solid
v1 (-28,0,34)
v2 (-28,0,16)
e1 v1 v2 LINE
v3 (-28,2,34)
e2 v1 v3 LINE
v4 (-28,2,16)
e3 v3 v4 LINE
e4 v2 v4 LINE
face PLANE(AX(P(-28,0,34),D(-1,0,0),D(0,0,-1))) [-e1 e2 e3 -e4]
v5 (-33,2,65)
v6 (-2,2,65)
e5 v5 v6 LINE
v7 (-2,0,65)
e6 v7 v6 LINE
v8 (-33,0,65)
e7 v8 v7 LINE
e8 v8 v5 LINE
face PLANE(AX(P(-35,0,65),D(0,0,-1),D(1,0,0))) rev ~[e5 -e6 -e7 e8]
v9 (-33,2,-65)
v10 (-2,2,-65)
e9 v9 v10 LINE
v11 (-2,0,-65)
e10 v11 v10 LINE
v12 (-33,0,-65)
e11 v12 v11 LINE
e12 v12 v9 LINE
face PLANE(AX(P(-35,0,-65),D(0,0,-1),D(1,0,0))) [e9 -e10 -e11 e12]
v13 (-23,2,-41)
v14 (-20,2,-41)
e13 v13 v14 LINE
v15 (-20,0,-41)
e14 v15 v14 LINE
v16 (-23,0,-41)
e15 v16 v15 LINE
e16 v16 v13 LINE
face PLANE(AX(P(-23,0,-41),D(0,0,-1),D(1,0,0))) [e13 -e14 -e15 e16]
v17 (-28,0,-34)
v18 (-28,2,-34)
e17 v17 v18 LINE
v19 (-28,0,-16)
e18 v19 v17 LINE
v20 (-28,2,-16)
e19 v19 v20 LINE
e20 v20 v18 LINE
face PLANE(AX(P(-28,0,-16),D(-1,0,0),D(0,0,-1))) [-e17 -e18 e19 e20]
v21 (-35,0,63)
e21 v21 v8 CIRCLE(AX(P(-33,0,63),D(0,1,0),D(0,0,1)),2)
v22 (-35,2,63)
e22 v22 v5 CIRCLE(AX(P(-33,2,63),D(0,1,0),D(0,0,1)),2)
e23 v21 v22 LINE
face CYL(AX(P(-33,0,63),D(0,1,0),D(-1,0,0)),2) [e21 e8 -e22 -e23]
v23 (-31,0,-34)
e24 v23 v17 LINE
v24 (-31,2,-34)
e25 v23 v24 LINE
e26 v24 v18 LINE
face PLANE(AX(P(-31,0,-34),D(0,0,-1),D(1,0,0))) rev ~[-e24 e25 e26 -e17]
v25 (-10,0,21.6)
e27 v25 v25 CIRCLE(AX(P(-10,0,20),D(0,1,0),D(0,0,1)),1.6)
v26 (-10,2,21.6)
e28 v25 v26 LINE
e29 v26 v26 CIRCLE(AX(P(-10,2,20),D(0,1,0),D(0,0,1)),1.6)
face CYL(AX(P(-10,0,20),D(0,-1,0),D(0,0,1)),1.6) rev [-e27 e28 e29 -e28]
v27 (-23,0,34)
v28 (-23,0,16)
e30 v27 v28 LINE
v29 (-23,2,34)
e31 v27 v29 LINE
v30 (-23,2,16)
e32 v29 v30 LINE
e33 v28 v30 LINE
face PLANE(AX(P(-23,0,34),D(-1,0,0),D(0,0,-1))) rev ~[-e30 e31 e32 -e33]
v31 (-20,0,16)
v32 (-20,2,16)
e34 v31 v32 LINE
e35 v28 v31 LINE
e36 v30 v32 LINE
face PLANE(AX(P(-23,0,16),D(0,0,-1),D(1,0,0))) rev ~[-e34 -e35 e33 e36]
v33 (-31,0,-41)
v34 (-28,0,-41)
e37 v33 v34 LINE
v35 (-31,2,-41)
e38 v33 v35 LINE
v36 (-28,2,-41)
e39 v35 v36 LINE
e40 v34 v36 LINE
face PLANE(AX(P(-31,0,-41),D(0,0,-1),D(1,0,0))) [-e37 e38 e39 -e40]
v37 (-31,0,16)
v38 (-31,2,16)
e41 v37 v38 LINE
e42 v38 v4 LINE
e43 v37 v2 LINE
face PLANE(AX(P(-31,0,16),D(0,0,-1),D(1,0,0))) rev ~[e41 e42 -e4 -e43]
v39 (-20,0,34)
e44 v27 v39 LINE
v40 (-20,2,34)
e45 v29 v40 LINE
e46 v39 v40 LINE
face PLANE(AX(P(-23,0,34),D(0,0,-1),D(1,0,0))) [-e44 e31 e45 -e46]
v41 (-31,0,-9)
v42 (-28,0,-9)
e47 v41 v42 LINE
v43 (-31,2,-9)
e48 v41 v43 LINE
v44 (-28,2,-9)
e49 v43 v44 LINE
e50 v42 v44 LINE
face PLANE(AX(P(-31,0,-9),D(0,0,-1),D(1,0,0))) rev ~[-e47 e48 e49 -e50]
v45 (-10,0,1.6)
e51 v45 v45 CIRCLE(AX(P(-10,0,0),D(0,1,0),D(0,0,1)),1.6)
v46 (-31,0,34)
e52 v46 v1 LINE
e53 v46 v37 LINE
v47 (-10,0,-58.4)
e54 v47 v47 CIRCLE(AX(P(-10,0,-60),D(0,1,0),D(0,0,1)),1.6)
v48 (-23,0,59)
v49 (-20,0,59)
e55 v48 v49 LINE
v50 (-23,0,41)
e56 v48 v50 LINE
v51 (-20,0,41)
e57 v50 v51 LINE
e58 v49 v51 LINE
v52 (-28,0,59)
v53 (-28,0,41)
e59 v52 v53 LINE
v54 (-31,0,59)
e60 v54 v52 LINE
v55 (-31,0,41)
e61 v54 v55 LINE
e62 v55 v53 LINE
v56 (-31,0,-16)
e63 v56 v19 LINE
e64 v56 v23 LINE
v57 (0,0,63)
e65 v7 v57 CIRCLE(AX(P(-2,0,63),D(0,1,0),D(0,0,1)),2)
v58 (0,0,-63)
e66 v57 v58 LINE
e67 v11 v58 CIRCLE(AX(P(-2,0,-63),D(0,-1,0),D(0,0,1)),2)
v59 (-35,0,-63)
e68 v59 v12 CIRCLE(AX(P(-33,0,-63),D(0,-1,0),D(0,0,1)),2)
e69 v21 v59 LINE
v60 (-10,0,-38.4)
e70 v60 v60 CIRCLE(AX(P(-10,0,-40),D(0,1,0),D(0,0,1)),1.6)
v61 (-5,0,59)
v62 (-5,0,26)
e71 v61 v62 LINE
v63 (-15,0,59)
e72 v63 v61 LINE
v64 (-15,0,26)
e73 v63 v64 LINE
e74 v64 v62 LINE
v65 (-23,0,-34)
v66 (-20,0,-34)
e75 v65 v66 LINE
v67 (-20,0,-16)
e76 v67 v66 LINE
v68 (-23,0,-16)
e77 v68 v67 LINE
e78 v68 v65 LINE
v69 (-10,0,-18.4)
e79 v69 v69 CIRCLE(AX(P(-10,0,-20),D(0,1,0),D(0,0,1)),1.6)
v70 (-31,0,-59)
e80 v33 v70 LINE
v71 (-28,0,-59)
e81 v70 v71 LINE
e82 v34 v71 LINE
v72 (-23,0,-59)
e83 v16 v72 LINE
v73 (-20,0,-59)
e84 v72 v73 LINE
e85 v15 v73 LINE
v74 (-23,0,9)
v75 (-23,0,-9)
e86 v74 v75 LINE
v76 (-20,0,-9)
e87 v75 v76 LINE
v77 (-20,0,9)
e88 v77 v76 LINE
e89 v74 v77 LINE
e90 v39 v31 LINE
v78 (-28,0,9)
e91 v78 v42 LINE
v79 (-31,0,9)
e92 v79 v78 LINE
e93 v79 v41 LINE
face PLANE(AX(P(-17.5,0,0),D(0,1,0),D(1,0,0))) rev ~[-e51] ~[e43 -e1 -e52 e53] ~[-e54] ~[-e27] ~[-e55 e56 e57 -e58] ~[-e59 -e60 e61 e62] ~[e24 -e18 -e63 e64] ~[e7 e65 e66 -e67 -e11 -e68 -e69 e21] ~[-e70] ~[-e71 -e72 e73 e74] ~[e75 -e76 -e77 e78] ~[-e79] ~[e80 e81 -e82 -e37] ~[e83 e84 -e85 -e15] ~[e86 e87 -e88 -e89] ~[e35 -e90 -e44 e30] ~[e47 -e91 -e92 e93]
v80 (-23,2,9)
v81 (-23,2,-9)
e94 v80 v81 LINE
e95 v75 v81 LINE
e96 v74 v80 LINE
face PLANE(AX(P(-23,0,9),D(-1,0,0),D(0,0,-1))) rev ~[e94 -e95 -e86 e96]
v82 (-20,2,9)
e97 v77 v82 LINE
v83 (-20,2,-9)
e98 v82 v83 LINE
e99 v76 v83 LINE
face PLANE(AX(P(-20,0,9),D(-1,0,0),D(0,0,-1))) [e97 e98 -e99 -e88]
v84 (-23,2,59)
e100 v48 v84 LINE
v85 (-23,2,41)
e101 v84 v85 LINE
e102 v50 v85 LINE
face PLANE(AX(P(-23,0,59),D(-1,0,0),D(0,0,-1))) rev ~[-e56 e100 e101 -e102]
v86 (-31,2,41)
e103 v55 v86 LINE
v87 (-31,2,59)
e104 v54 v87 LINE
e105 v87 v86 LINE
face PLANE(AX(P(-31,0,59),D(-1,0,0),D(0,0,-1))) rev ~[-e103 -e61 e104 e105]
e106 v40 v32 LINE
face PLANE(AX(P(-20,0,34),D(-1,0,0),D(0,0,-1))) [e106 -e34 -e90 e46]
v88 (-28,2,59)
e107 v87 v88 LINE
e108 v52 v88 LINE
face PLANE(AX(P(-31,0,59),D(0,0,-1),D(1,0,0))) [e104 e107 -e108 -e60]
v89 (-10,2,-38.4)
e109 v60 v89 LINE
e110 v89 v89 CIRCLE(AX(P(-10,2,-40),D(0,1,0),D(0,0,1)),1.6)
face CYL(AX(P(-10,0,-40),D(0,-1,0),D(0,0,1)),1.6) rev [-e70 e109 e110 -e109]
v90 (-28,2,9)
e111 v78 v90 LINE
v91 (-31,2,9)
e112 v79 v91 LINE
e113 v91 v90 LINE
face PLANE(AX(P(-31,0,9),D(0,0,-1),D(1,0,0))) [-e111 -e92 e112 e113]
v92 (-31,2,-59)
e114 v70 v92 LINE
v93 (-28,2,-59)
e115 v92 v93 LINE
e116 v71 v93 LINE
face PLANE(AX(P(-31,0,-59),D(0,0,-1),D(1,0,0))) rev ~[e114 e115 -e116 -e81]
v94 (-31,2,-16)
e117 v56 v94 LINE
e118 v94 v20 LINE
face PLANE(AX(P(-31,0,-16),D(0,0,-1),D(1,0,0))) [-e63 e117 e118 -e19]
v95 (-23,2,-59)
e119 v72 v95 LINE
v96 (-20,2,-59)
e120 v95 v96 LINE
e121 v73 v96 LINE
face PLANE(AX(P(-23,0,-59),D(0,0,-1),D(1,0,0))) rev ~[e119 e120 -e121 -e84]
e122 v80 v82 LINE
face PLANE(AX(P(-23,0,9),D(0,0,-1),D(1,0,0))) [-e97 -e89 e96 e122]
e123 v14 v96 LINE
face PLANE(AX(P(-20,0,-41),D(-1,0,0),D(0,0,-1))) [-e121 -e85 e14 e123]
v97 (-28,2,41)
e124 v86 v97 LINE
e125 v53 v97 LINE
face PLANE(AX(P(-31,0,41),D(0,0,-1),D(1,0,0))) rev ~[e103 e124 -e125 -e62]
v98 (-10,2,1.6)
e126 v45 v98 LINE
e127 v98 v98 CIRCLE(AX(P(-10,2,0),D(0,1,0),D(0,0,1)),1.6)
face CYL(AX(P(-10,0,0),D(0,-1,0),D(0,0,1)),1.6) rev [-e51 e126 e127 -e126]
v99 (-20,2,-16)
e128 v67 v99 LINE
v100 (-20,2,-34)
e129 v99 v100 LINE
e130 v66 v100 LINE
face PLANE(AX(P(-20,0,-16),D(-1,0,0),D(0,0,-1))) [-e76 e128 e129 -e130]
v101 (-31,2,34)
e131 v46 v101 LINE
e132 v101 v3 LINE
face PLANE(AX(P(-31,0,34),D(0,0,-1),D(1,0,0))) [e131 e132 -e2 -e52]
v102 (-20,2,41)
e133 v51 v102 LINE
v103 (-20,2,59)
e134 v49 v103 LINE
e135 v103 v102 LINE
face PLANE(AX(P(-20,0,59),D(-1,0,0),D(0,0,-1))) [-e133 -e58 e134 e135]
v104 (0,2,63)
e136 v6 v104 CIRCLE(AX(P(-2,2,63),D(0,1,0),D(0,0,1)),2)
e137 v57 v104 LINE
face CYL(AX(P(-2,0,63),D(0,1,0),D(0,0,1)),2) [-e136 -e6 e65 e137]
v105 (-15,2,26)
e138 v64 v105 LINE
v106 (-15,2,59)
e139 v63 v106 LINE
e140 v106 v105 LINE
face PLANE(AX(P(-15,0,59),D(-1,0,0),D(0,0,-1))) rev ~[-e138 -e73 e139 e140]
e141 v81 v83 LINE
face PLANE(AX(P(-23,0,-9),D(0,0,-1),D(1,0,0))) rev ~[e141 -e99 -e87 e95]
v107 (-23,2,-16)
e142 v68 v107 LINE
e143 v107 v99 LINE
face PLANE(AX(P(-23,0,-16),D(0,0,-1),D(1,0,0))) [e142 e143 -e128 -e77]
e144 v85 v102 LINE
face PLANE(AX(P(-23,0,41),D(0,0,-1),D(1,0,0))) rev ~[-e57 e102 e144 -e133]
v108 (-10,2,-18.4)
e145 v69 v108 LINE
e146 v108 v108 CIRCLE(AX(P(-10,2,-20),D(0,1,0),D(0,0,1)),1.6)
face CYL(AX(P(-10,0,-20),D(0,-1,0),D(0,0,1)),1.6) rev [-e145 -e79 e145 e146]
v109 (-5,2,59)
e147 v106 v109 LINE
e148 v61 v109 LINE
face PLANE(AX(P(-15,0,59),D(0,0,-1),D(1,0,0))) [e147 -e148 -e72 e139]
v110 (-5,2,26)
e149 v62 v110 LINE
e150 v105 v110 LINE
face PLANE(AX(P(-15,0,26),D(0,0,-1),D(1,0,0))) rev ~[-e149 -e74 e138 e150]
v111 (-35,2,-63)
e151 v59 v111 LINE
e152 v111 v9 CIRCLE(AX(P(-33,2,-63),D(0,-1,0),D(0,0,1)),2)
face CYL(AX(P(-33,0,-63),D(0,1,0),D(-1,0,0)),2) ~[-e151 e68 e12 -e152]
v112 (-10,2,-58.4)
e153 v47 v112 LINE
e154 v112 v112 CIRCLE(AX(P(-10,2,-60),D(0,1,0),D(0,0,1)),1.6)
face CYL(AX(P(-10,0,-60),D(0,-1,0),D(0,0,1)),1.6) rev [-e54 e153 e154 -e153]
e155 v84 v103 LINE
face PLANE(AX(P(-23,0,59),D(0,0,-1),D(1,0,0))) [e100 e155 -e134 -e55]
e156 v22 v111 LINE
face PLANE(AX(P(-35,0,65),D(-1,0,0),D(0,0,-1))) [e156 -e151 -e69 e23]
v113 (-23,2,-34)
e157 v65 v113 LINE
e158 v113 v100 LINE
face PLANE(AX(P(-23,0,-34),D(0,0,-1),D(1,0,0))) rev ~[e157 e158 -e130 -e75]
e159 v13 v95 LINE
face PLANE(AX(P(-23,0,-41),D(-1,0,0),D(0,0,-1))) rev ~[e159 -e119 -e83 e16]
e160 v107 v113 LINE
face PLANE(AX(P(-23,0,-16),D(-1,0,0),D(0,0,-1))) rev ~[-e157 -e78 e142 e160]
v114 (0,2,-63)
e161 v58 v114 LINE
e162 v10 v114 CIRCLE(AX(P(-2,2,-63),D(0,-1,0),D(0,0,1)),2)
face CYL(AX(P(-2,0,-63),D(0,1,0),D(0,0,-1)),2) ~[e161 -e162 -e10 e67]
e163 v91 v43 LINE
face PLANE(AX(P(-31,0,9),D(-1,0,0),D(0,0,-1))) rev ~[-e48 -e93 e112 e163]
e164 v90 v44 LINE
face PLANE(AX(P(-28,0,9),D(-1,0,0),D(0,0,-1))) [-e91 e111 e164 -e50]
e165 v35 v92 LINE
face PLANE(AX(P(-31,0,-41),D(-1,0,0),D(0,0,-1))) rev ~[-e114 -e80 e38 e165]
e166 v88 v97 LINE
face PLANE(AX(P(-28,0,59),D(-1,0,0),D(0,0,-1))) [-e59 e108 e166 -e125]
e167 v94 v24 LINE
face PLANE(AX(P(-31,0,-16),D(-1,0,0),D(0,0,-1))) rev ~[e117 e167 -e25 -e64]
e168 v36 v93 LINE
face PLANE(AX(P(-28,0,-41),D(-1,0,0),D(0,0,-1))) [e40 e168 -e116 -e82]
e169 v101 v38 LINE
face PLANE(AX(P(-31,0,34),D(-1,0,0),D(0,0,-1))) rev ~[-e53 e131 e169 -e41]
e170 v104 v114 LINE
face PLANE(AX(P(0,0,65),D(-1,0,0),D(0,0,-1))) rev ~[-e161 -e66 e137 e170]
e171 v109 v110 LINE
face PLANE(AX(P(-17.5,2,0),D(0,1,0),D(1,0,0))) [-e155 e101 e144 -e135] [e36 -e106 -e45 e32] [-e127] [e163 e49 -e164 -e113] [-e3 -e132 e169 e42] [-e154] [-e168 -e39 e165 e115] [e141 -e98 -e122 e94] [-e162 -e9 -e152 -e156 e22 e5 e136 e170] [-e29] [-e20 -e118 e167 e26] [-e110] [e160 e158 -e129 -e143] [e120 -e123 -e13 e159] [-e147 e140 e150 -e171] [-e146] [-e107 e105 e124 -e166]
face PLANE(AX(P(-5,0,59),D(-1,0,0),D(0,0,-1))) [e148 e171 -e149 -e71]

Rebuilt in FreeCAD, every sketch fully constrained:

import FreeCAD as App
import Part
import Sketcher
Q = App.Units.Quantity


def edges_at(feature, points):
    """Names of the edges that pass closest to the given points."""
    edges = feature.Shape.Edges
    near = lambda p: min(range(len(edges)), key=lambda i: edges[i].distToShape(Part.Vertex(*p))[0])
    return sorted({f"Edge{near(p) + 1}" for p in points})


def add_polygon(sketch, points):
    """Adds a closed chain of lines whose ends are joined by coincident constraints."""
    first, n = sketch.GeometryCount, len(points)
    for a, b in zip(points, points[1:] + points[:1]):
        sketch.addGeometry(Part.LineSegment(App.Vector(*a, 0), App.Vector(*b, 0)), False)
    for i in range(n):
        sketch.addConstraint(Sketcher.Constraint("Coincident", first + i, 2, first + (i + 1) % n, 1))

doc = App.newDocument("Part")
body = doc.addObject("PartDesign::Body", "Body")

sketch1 = body.newObject("Sketcher::SketchObject", "Sketch")
sketch1.AttachmentSupport = (doc.getObject("XZ_Plane"), [""])
sketch1.MapMode = "FlatFace"
add_polygon(sketch1, [(-35, -65), (-35, 65), (0, 65), (0, -65)])
add_polygon(sketch1, [(-28, 59), (-31, 59), (-31, 41), (-28, 41)])
add_polygon(sketch1, [(-20, 59), (-23, 59), (-23, 41), (-20, 41)])
add_polygon(sketch1, [(-28, 34), (-31, 34), (-31, 16), (-28, 16)])
add_polygon(sketch1, [(-28, 9), (-31, 9), (-31, -9), (-28, -9)])
add_polygon(sketch1, [(-20, 34), (-23, 34), (-23, 16), (-20, 16)])
add_polygon(sketch1, [(-20, 9), (-23, 9), (-23, -9), (-20, -9)])
add_polygon(sketch1, [(-5, 59), (-15, 59), (-15, 26), (-5, 26)])
sketch1.addGeometry(Part.Circle(App.Vector(-10, 20, 0), App.Vector(0, 0, 1), 1.6), False)
sketch1.addGeometry(Part.Circle(App.Vector(-10, 0, 0), App.Vector(0, 0, 1), 1.6), False)
add_polygon(sketch1, [(-28, -16), (-31, -16), (-31, -34), (-28, -34)])
add_polygon(sketch1, [(-20, -16), (-23, -16), (-23, -34), (-20, -34)])
add_polygon(sketch1, [(-28, -41), (-31, -41), (-31, -59), (-28, -59)])
add_polygon(sketch1, [(-20, -41), (-23, -41), (-23, -59), (-20, -59)])
sketch1.addGeometry(Part.Circle(App.Vector(-10, -20, 0), App.Vector(0, 0, 1), 1.6), False)
sketch1.addGeometry(Part.Circle(App.Vector(-10, -40, 0), App.Vector(0, 0, 1), 1.6), False)
sketch1.addGeometry(Part.Circle(App.Vector(-10, -60, 0), App.Vector(0, 0, 1), 1.6), False)
sketch1.addConstraint([
    Sketcher.Constraint("Vertical", 0),
    Sketcher.Constraint("Horizontal", 1),
    Sketcher.Constraint("Vertical", 2),
    Sketcher.Constraint("Horizontal", 3),
    Sketcher.Constraint("Horizontal", 4),
    Sketcher.Constraint("Vertical", 5),
    Sketcher.Constraint("Horizontal", 6),
    Sketcher.Constraint("Vertical", 7),
    Sketcher.Constraint("Horizontal", 8),
    Sketcher.Constraint("Vertical", 9),
    Sketcher.Constraint("Horizontal", 10),
    Sketcher.Constraint("Vertical", 11),
    Sketcher.Constraint("Horizontal", 12),
    Sketcher.Constraint("Vertical", 13),
    Sketcher.Constraint("Horizontal", 14),
    Sketcher.Constraint("Vertical", 15),
    Sketcher.Constraint("Horizontal", 16),
    Sketcher.Constraint("Vertical", 17),
    Sketcher.Constraint("Horizontal", 18),
    Sketcher.Constraint("Vertical", 19),
    Sketcher.Constraint("Horizontal", 20),
    Sketcher.Constraint("Vertical", 21),
    Sketcher.Constraint("Horizontal", 22),
    Sketcher.Constraint("Vertical", 23),
    Sketcher.Constraint("Horizontal", 24),
    Sketcher.Constraint("Vertical", 25),
    Sketcher.Constraint("Horizontal", 26),
    Sketcher.Constraint("Vertical", 27),
    Sketcher.Constraint("Horizontal", 28),
    Sketcher.Constraint("Vertical", 29),
    Sketcher.Constraint("Horizontal", 30),
    Sketcher.Constraint("Vertical", 31),
    Sketcher.Constraint("Horizontal", 34),
    Sketcher.Constraint("Vertical", 35),
    Sketcher.Constraint("Horizontal", 36),
    Sketcher.Constraint("Vertical", 37),
    Sketcher.Constraint("Horizontal", 38),
    Sketcher.Constraint("Vertical", 39),
    Sketcher.Constraint("Horizontal", 40),
    Sketcher.Constraint("Vertical", 41),
    Sketcher.Constraint("Horizontal", 42),
    Sketcher.Constraint("Vertical", 43),
    Sketcher.Constraint("Horizontal", 44),
    Sketcher.Constraint("Vertical", 45),
    Sketcher.Constraint("Horizontal", 46),
    Sketcher.Constraint("Vertical", 47),
    Sketcher.Constraint("Horizontal", 48),
    Sketcher.Constraint("Vertical", 49),
    Sketcher.Constraint("Equal", 32, 33),
    Sketcher.Constraint("Equal", 33, 50),
    Sketcher.Constraint("Equal", 50, 51),
    Sketcher.Constraint("Equal", 51, 52),
    Sketcher.Constraint("Symmetric", 1, 2, 2, 2, -1, 1),
    Sketcher.Constraint("Symmetric", 32, 3, 50, 3, -1),
    Sketcher.Constraint("Symmetric", 13, 2, 34, 2, -1),
    Sketcher.Constraint("Symmetric", 15, 2, 36, 2, -1),
    Sketcher.Constraint("Symmetric", 21, 2, 38, 2, -1),
    Sketcher.Constraint("Symmetric", 23, 2, 40, 2, -1),
    Sketcher.Constraint("Symmetric", 5, 2, 42, 2, -1),
    Sketcher.Constraint("Symmetric", 7, 2, 44, 2, -1),
    Sketcher.Constraint("Symmetric", 9, 2, 46, 2, -1),
    Sketcher.Constraint("Symmetric", 11, 2, 48, 2, -1),
    Sketcher.Constraint("PointOnObject", 33, 3, -1),
    Sketcher.Constraint("Horizontal", 7, 2, 8, 2),
    Sketcher.Constraint("Horizontal", 6, 2, 9, 2),
    Sketcher.Constraint("Horizontal", 15, 2, 20, 2),
    Sketcher.Constraint("Horizontal", 14, 2, 21, 2),
    Sketcher.Constraint("Horizontal", 19, 2, 24, 2),
    Sketcher.Constraint("Horizontal", 18, 2, 25, 2),
    Sketcher.Constraint("Horizontal", 11, 2, 28, 2),
    Sketcher.Constraint("Vertical", 32, 3, 33, 3),
    Sketcher.Constraint("Vertical", 50, 3, 51, 3),
    Sketcher.Constraint("Vertical", 51, 3, 52, 3),
    Sketcher.Constraint("Vertical", 5, 2, 12, 2),
    Sketcher.Constraint("Vertical", 7, 2, 14, 2),
    Sketcher.Constraint("Vertical", 13, 2, 16, 2),
    Sketcher.Constraint("Vertical", 15, 2, 18, 2),
    Sketcher.Constraint("Vertical", 9, 2, 20, 2),
    Sketcher.Constraint("Vertical", 11, 2, 22, 2),
    Sketcher.Constraint("Vertical", 21, 2, 24, 2),
    Sketcher.Constraint("Vertical", 23, 2, 26, 2),
    Sketcher.Constraint("Equal", 6, 8),
    Sketcher.Constraint("Equal", 11, 13),
    Sketcher.Constraint("Equal", 15, 17),
    Sketcher.Constraint("Diameter", 32, Q("3.2 mm")),
    Sketcher.Constraint("DistanceX", 1, 1, 1, 2, Q("35 mm")),
    Sketcher.Constraint("DistanceX", 4, 2, 4, 1, Q("3 mm")),
    Sketcher.Constraint("DistanceX", 28, 2, 28, 1, Q("10 mm")),
    Sketcher.Constraint("DistanceY", 0, 1, 0, 2, Q("130 mm")),
    Sketcher.Constraint("DistanceY", 5, 2, 5, 1, Q("18 mm")),
    Sketcher.Constraint("DistanceY", 29, 2, 29, 1, Q("33 mm")),
    Sketcher.Constraint("DistanceX", 32, 3, -1, 1, Q("10 mm")),
    Sketcher.Constraint("DistanceY", -1, 1, 32, 3, Q("20 mm")),
    Sketcher.Constraint("DistanceY", 51, 3, -1, 1, Q("40 mm")),
    Sketcher.Constraint("DistanceY", 52, 3, -1, 1, Q("60 mm")),
    Sketcher.Constraint("DistanceX", 4, 2, -1, 1, Q("31 mm")),
    Sketcher.Constraint("DistanceY", -1, 1, 4, 2, Q("59 mm")),
    Sketcher.Constraint("DistanceX", 8, 2, -1, 1, Q("23 mm")),
    Sketcher.Constraint("DistanceY", -1, 1, 12, 2, Q("34 mm")),
    Sketcher.Constraint("DistanceY", -1, 1, 16, 2, Q("9 mm")),
    Sketcher.Constraint("DistanceX", 28, 2, -1, 1, Q("15 mm")),
])
pad1 = body.newObject("PartDesign::Pad", "Pad")
pad1.Profile = sketch1
pad1.Length = 2
pad1.Reversed = True
doc.recompute()

fillet = body.newObject("PartDesign::Fillet", "Fillet")
fillet.Base = (pad1, edges_at(pad1, [
    (0, 1, 65),
    (-35, 1, 65),
    (-35, 1, -65),
    (0, 1, -65),
]))
fillet.Radius = 2

doc.recompute()
